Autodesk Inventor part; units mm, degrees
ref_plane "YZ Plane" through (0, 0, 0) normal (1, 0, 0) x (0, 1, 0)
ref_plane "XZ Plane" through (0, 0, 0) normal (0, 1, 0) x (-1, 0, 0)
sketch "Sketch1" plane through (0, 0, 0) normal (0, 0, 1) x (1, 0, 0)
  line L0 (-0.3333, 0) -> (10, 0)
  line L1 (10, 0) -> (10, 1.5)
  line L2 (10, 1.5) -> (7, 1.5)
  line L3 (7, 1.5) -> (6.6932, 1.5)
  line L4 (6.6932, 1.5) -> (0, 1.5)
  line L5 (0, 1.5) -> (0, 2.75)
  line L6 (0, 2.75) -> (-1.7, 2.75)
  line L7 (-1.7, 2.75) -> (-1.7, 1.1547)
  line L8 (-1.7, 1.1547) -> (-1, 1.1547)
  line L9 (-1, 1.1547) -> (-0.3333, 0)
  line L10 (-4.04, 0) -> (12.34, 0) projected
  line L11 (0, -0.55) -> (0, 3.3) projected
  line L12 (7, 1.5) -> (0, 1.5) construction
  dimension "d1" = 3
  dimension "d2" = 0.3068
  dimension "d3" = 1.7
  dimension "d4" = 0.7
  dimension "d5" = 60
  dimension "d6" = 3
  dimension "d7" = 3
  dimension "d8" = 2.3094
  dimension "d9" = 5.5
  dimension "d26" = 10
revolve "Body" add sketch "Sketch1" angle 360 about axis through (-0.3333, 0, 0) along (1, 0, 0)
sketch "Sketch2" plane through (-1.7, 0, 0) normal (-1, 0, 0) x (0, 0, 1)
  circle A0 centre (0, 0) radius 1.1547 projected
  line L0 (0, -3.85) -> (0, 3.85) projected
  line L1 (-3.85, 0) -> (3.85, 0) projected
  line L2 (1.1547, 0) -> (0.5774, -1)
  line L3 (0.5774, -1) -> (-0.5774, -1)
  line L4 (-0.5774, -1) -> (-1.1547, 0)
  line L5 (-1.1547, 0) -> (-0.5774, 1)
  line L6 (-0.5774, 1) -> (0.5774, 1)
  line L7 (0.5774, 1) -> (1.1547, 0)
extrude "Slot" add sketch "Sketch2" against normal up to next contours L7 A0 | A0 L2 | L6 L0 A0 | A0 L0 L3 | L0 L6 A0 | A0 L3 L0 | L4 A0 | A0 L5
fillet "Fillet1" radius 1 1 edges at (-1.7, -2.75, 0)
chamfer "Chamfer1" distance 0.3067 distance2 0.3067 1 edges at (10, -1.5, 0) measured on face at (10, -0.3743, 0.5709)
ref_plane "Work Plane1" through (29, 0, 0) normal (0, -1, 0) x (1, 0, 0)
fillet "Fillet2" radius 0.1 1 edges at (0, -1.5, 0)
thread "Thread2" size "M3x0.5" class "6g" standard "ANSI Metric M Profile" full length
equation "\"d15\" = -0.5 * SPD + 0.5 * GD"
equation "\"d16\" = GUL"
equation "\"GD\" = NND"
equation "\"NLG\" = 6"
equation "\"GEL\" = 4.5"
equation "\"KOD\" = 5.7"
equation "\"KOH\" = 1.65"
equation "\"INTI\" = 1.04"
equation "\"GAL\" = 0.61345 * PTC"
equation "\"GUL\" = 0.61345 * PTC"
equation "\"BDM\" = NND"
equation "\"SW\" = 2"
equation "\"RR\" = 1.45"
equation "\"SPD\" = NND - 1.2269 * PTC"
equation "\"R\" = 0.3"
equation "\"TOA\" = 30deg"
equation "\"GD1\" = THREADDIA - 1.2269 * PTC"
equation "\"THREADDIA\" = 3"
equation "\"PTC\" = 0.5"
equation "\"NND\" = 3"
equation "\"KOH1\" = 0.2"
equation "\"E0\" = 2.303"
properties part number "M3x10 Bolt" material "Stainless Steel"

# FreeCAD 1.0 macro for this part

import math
import FreeCAD as App
import Part
import Sketcher
Q = App.Units.Quantity


def edges_at(feature, points):
    """Names of the edges that pass closest to the given points."""
    edges = feature.Shape.Edges
    near = lambda p: min(range(len(edges)), key=lambda i: edges[i].distToShape(Part.Vertex(*p))[0])
    return sorted({f"Edge{near(p) + 1}" for p in points})


def add_polygon(sketch, points):
    """Adds a closed chain of lines whose ends are joined by coincident constraints."""
    first, n = sketch.GeometryCount, len(points)
    for a, b in zip(points, points[1:] + points[:1]):
        sketch.addGeometry(Part.LineSegment(App.Vector(*a, 0), App.Vector(*b, 0)), False)
    for i in range(n):
        sketch.addConstraint(Sketcher.Constraint("Coincident", first + i, 2, first + (i + 1) % n, 1))

doc = App.newDocument("Part")
params = doc.addObject("Spreadsheet::Sheet", "Params")
for row, (alias, value) in enumerate([
    ("sketch1_width", "10 mm"),
    ("sketch1_width2", "1.7 mm"),
    ("sketch1_width3", "0.7 mm"),
    ("sketch1_height", "1.5 mm"),
    ("sketch1_height2", "1.25 mm"),
    ("revolution_angle", "360 deg"),
    ("fillet_radius", "1 mm"),
    ("chamfer_size", "0.3067 mm"),
    ("chamfer_size2", "0.3067 mm"),
    ("fillet2_radius", "0.1 mm"),
], start=1):
    params.set(f"A{row}", alias)
    params.set(f"B{row}", "=" + value)
    params.setAlias(f"B{row}", alias)

body = doc.addObject("PartDesign::Body", "Body")

# Sketch on XY plane
sketch1 = body.newObject("Sketcher::SketchObject", "Sketch")
sketch1.AttachmentSupport = (doc.getObject("XY_Plane"), [""])
sketch1.MapMode = "FlatFace"
add_polygon(sketch1, [(-1, 1.2), (-0.3, 0), (10, 0), (10, 1.5), (0, 1.5), (0, 2.8), (-1.7, 2.8), (-1.7, 1.2)])  # lines 0-7
sketch1.addConstraint([
    Sketcher.Constraint("Horizontal", 1),
    Sketcher.Constraint("Vertical", 2),
    Sketcher.Constraint("Horizontal", 3),
    Sketcher.Constraint("Vertical", 4),
    Sketcher.Constraint("Horizontal", 5),
    Sketcher.Constraint("Vertical", 6),
    Sketcher.Constraint("Horizontal", 7),
    Sketcher.Constraint("PointOnObject", 0, 2, -1),
    Sketcher.Constraint("PointOnObject", 3, 2, -2),
    Sketcher.Constraint("DistanceX", 3, 2, 3, 1, Q("10 mm")),
    Sketcher.Constraint("DistanceX", 5, 2, 5, 1, Q("1.7 mm")),
    Sketcher.Constraint("DistanceX", 7, 1, 7, 2, Q("0.7 mm")),
    Sketcher.Constraint("DistanceY", 2, 1, 2, 2, Q("1.5 mm")),
    Sketcher.Constraint("DistanceY", 4, 1, 4, 2, Q("1.25 mm")),
    Sketcher.Constraint("DistanceX", 1, 1, 1, 2, Q("10.3333 mm")),
    Sketcher.Constraint("DistanceY", 6, 2, 6, 1, Q("1.5953 mm")),
])
sketch1.setExpression("Constraints[17]", "Params.sketch1_width")
sketch1.setExpression("Constraints[18]", "Params.sketch1_width2")
sketch1.setExpression("Constraints[19]", "Params.sketch1_width3")
sketch1.setExpression("Constraints[20]", "Params.sketch1_height")
sketch1.setExpression("Constraints[21]", "Params.sketch1_height2")
revolution = body.newObject("PartDesign::Revolution", "Revolution")
revolution.Profile = sketch1
revolution.ReferenceAxis = (sketch1, ["H_Axis"])
revolution.setExpression("Angle", "Params.revolution_angle")

# Sketch on YZ plane
sketch2 = body.newObject("Sketcher::SketchObject", "Sketch001")
sketch2.AttachmentSupport = (doc.getObject("YZ_Plane"), [""])
sketch2.MapMode = "FlatFace"
sketch2.AttachmentOffset = App.Placement(App.Vector(0, 0, -1.7), App.Rotation())
sketch2.addGeometry([
    Part.LineSegment(App.Vector(1, 0.6, 0), App.Vector(0, 1.2, 0)),  # 0
    Part.ArcOfCircle(Part.Circle(App.Vector(0, 0, 0), App.Vector(0, 0, 1), 1.2), math.radians(30), math.radians(90)),  # 1
    Part.ArcOfCircle(Part.Circle(App.Vector(0, 0, 0), App.Vector(0, 0, 1), 1.2), math.radians(90), math.radians(150)),  # 2
    Part.LineSegment(App.Vector(0, 1.2, 0), App.Vector(-1, 0.6, 0)),  # 3
    Part.ArcOfCircle(Part.Circle(App.Vector(0, 0, 0), App.Vector(0, 0, 1), 1.2), math.radians(-30), math.radians(30)),  # 4
    Part.LineSegment(App.Vector(1, 0.6, 0), App.Vector(1, -0.6, 0)),  # 5
    Part.LineSegment(App.Vector(-1, 0.6, 0), App.Vector(-1, -0.6, 0)),  # 6
    Part.ArcOfCircle(Part.Circle(App.Vector(0, 0, 0), App.Vector(0, 0, 1), 1.2), math.radians(150), math.radians(210)),  # 7
    Part.LineSegment(App.Vector(-1, -0.6, 0), App.Vector(0, -1.2, 0)),  # 8
    Part.ArcOfCircle(Part.Circle(App.Vector(0, 0, 0), App.Vector(0, 0, 1), 1.2), math.radians(-150), math.radians(-90)),  # 9
    Part.ArcOfCircle(Part.Circle(App.Vector(0, 0, 0), App.Vector(0, 0, 1), 1.2), math.radians(-90), math.radians(-30)),  # 10
    Part.LineSegment(App.Vector(0, -1.2, 0), App.Vector(1, -0.6, 0)),  # 11
], False)
sketch2.addConstraint([
    Sketcher.Constraint("Coincident", 0, 1, 1, 1),
    Sketcher.Constraint("Coincident", 1, 2, 0, 2),
    Sketcher.Constraint("Coincident", 2, 1, 3, 1),
    Sketcher.Constraint("Coincident", 3, 2, 2, 2),
    Sketcher.Constraint("Coincident", 4, 1, 5, 2),
    Sketcher.Constraint("Coincident", 5, 1, 4, 2),
    Sketcher.Constraint("Coincident", 6, 1, 7, 1),
    Sketcher.Constraint("Coincident", 7, 2, 6, 2),
    Sketcher.Constraint("Coincident", 8, 1, 9, 1),
    Sketcher.Constraint("Coincident", 9, 2, 8, 2),
    Sketcher.Constraint("Coincident", 10, 1, 11, 1),
    Sketcher.Constraint("Coincident", 11, 2, 10, 2),
    Sketcher.Constraint("Vertical", 5),
    Sketcher.Constraint("Vertical", 6),
    Sketcher.Constraint("Coincident", 1, 3, -1, 1),
    Sketcher.Constraint("Coincident", 2, 3, -1, 1),
    Sketcher.Constraint("Coincident", 4, 3, -1, 1),
    Sketcher.Constraint("Coincident", 7, 3, -1, 1),
    Sketcher.Constraint("Coincident", 9, 3, -1, 1),
    Sketcher.Constraint("Coincident", 10, 3, -1, 1),
    Sketcher.Constraint("Coincident", 2, 1, 1, 2),
    Sketcher.Constraint("Coincident", 5, 1, 0, 1),
    Sketcher.Constraint("Coincident", 6, 1, 3, 2),
    Sketcher.Constraint("Coincident", 8, 1, 7, 2),
    Sketcher.Constraint("Coincident", 10, 1, 9, 2),
    Sketcher.Constraint("PointOnObject", 1, 2, -2),
    Sketcher.Constraint("PointOnObject", 9, 2, -2),
    Sketcher.Constraint("Parallel", 0, 8),
    Sketcher.Constraint("Parallel", 3, 11),
    Sketcher.Constraint("DistanceX", -1, 1, 0, 1, Q("1 mm")),
    Sketcher.Constraint("Radius", 1, Q("1.1547 mm")),
])
pad1 = body.newObject("PartDesign::Pad", "Pad")
pad1.Profile = sketch2
pad1.Type = "UpToFirst"
doc.recompute()

fillet = body.newObject("PartDesign::Fillet", "Fillet")
fillet.Base = (pad1, edges_at(pad1, [(-1.7, -2.75, 0)]))
fillet.setExpression("Radius", "Params.fillet_radius")
doc.recompute()

chamfer = body.newObject("PartDesign::Chamfer", "Chamfer")
chamfer.Base = (fillet, edges_at(fillet, [(10, -1.5, 0)]))
chamfer.ChamferType = "Two distances"
chamfer.setExpression("Size", "Params.chamfer_size")
chamfer.setExpression("Size2", "Params.chamfer_size2")
doc.recompute()

fillet2 = body.newObject("PartDesign::Fillet", "Fillet001")
fillet2.Base = (chamfer, edges_at(chamfer, [(0, -1.5, 0)]))
fillet2.setExpression("Radius", "Params.fillet2_radius")

doc.recompute()
